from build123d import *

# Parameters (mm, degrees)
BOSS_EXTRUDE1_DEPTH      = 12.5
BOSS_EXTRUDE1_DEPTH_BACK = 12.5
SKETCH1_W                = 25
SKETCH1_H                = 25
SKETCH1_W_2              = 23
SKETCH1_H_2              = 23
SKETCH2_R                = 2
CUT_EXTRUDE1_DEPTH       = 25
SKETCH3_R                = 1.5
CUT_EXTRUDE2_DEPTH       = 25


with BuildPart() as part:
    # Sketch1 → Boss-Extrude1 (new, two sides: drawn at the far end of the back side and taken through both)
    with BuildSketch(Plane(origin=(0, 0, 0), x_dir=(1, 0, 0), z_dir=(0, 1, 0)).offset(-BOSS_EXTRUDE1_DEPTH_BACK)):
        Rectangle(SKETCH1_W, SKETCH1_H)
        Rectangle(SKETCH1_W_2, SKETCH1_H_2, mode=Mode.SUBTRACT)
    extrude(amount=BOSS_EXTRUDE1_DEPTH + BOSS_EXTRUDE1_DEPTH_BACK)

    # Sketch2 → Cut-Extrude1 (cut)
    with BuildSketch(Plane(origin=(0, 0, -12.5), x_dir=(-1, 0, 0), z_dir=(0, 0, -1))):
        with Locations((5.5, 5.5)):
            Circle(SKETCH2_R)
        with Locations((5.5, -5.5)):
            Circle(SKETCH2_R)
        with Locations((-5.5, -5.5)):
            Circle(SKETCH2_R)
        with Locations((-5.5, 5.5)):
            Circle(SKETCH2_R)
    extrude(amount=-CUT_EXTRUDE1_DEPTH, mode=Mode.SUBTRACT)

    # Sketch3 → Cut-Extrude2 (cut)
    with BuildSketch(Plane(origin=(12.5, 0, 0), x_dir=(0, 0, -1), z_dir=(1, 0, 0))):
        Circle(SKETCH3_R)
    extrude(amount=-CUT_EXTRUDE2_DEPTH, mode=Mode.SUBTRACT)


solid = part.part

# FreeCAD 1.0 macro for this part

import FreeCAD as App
import Part
import Sketcher
from FreeCAD import Vector

doc = App.newDocument("Part")
body = doc.addObject("PartDesign::Body", "Body")

# Sketch on XZ plane
sketch1 = body.newObject("Sketcher::SketchObject", "Sketch")
sketch1.AttachmentSupport = (doc.getObject("XZ_Plane"), [""])
sketch1.MapMode = "FlatFace"
sketch1.addGeometry([
    Part.LineSegment(Vector(-12, -12, 0), Vector(-12, 12, 0)),  # 0
    Part.LineSegment(Vector(-12, 12, 0), Vector(12, 12, 0)),  # 1
    Part.LineSegment(Vector(12, 12, 0), Vector(12, -12, 0)),  # 2
    Part.LineSegment(Vector(12, -12, 0), Vector(-12, -12, 0)),  # 3
    Part.LineSegment(Vector(12, 12, 0), Vector(-12, 12, 0)),  # 4
    Part.LineSegment(Vector(-12, 12, 0), Vector(-12, -12, 0)),  # 5
    Part.LineSegment(Vector(-12, -12, 0), Vector(12, -12, 0)),  # 6
    Part.LineSegment(Vector(12, -12, 0), Vector(12, 12, 0)),  # 7
], False)
sketch1.addConstraint([
    Sketcher.Constraint("Coincident", 0, 2, 1, 1),
    Sketcher.Constraint("Coincident", 1, 2, 2, 1),
    Sketcher.Constraint("Coincident", 2, 2, 3, 1),
    Sketcher.Constraint("Coincident", 3, 2, 0, 1),
    Sketcher.Constraint("Coincident", 4, 2, 5, 1),
    Sketcher.Constraint("Coincident", 5, 2, 6, 1),
    Sketcher.Constraint("Coincident", 6, 2, 7, 1),
    Sketcher.Constraint("Coincident", 7, 2, 4, 1),
    Sketcher.Constraint("Vertical", 0),
    Sketcher.Constraint("Horizontal", 1),
    Sketcher.Constraint("Vertical", 2),
    Sketcher.Constraint("Horizontal", 3),
    Sketcher.Constraint("Horizontal", 4),
    Sketcher.Constraint("Vertical", 5),
    Sketcher.Constraint("Horizontal", 6),
    Sketcher.Constraint("Vertical", 7),
    Sketcher.Constraint("Symmetric", 0, 2, 2, 2, -1, 1),
    Sketcher.Constraint("Symmetric", 4, 2, 6, 2, -1, 1),
    Sketcher.Constraint("Equal", 3, 0),
    Sketcher.Constraint("Equal", 6, 5),
    Sketcher.Constraint("DistanceX", 1, 1, 1, 2, 25.0),
    Sketcher.Constraint("DistanceX", 4, 2, 4, 1, 23.0),
])
pad1 = body.newObject("PartDesign::Pad", "Pad")
pad1.Profile = sketch1
pad1.Type = "TwoLengths"
pad1.Length = 12.5
pad1.Length2 = 12.5
pad1.Reversed = True

# Sketch on XY plane
sketch2 = body.newObject("Sketcher::SketchObject", "Sketch001")
sketch2.AttachmentSupport = (doc.getObject("XY_Plane"), [""])
sketch2.MapMode = "FlatFace"
sketch2.AttachmentOffset = App.Placement(Vector(0, 0, -12.5), App.Rotation())
sketch2.addGeometry([
    Part.Circle(Vector(-5.5, 5.5, 0), Vector(0, 0, 1), 2),
    Part.Circle(Vector(-5.5, -5.5, 0), Vector(0, 0, 1), 2),
    Part.Circle(Vector(5.5, -5.5, 0), Vector(0, 0, 1), 2),
    Part.Circle(Vector(5.5, 5.5, 0), Vector(0, 0, 1), 2),
], False)
sketch2.addConstraint([
    Sketcher.Constraint("Equal", 0, 1),
    Sketcher.Constraint("Equal", 1, 2),
    Sketcher.Constraint("Equal", 2, 3),
    Sketcher.Constraint("Symmetric", 0, 3, 2, 3, -1, 1),
    Sketcher.Constraint("Symmetric", 1, 3, 3, 3, -1, 1),
    Sketcher.Constraint("Symmetric", 1, 3, 2, 3, -2),
    Sketcher.Constraint("Diameter", 0, 4.0),
    Sketcher.Constraint("DistanceY", 1, 3, 0, 3, 11.0),
    Sketcher.Constraint("DistanceX", 1, 3, 2, 3, 11.0),
])
pocket1 = body.newObject("PartDesign::Pocket", "Pocket")
pocket1.Profile = sketch2
pocket1.Length = 25
pocket1.Reversed = True

# Sketch on YZ plane
sketch3 = body.newObject("Sketcher::SketchObject", "Sketch002")
sketch3.AttachmentSupport = (doc.getObject("YZ_Plane"), [""])
sketch3.MapMode = "FlatFace"
sketch3.AttachmentOffset = App.Placement(Vector(0, 0, 12.5), App.Rotation())
sketch3.addGeometry(Part.Circle(Vector(0, 0, 0), Vector(0, 0, 1), 1.5), False)
sketch3.addConstraint([
    Sketcher.Constraint("Coincident", 0, 3, -1, 1),
    Sketcher.Constraint("Diameter", 0, 3.0),
])
pocket2 = body.newObject("PartDesign::Pocket", "Pocket001")
pocket2.Profile = sketch3
pocket2.Length = 25

doc.recompute()
